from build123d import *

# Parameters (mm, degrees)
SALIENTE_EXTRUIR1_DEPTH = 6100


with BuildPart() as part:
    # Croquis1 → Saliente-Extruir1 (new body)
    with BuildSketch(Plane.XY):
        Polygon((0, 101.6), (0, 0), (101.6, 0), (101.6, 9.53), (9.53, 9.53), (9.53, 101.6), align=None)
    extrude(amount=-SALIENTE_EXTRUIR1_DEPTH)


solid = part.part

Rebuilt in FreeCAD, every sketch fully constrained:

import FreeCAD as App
import Part
import Sketcher
Q = App.Units.Quantity

doc = App.newDocument("Part")
params = doc.addObject("Spreadsheet::Sheet", "Params")
for row, (alias, value) in enumerate([
    ("sketch1_width", "101.6 mm"),
    ("sketch1_width2", "92.07 mm"),
    ("pad1_length", "6100 mm"),
], start=1):
    params.set(f"A{row}", alias)
    params.set(f"B{row}", "=" + value)
    params.setAlias(f"B{row}", alias)

body = doc.addObject("PartDesign::Body", "Body")

# Sketch on XY plane
sketch1 = body.newObject("Sketcher::SketchObject", "Sketch")
sketch1.AttachmentSupport = (doc.getObject("XY_Plane"), [""])
sketch1.MapMode = "FlatFace"
sketch1.addGeometry([
    Part.LineSegment(App.Vector(0, 102, 0), App.Vector(0, 0, 0)),  # 0
    Part.LineSegment(App.Vector(0, 0, 0), App.Vector(102, 0, 0)),  # 1
    Part.LineSegment(App.Vector(102, 0, 0), App.Vector(102, 10, 0)),  # 2
    Part.LineSegment(App.Vector(102, 10, 0), App.Vector(10, 10, 0)),  # 3
    Part.LineSegment(App.Vector(10, 10, 0), App.Vector(10, 102, 0)),  # 4
    Part.LineSegment(App.Vector(10, 102, 0), App.Vector(0, 102, 0)),  # 5
], False)
sketch1.addConstraint([
    Sketcher.Constraint("Coincident", 0, 2, 1, 1),
    Sketcher.Constraint("Coincident", 1, 2, 2, 1),
    Sketcher.Constraint("Coincident", 2, 2, 3, 1),
    Sketcher.Constraint("Coincident", 3, 2, 4, 1),
    Sketcher.Constraint("Coincident", 4, 2, 5, 1),
    Sketcher.Constraint("Coincident", 5, 2, 0, 1),
    Sketcher.Constraint("Vertical", 0),
    Sketcher.Constraint("Horizontal", 1),
    Sketcher.Constraint("Vertical", 2),
    Sketcher.Constraint("Horizontal", 3),
    Sketcher.Constraint("Vertical", 4),
    Sketcher.Constraint("Horizontal", 5),
    Sketcher.Constraint("Coincident", 0, 2, -1, 1),
    Sketcher.Constraint("Equal", 1, 0),
    Sketcher.Constraint("Equal", 5, 2),
    Sketcher.Constraint("DistanceX", 1, 1, 1, 2, Q("101.6 mm")),
    Sketcher.Constraint("DistanceX", 3, 2, 3, 1, Q("92.07 mm")),
])
sketch1.setExpression("Constraints[15]", "Params.sketch1_width")
sketch1.setExpression("Constraints[16]", "Params.sketch1_width2")
pad1 = body.newObject("PartDesign::Pad", "Pad")
pad1.Profile = sketch1
pad1.setExpression("Length", "Params.pad1_length")
pad1.Reversed = True

doc.recompute()
